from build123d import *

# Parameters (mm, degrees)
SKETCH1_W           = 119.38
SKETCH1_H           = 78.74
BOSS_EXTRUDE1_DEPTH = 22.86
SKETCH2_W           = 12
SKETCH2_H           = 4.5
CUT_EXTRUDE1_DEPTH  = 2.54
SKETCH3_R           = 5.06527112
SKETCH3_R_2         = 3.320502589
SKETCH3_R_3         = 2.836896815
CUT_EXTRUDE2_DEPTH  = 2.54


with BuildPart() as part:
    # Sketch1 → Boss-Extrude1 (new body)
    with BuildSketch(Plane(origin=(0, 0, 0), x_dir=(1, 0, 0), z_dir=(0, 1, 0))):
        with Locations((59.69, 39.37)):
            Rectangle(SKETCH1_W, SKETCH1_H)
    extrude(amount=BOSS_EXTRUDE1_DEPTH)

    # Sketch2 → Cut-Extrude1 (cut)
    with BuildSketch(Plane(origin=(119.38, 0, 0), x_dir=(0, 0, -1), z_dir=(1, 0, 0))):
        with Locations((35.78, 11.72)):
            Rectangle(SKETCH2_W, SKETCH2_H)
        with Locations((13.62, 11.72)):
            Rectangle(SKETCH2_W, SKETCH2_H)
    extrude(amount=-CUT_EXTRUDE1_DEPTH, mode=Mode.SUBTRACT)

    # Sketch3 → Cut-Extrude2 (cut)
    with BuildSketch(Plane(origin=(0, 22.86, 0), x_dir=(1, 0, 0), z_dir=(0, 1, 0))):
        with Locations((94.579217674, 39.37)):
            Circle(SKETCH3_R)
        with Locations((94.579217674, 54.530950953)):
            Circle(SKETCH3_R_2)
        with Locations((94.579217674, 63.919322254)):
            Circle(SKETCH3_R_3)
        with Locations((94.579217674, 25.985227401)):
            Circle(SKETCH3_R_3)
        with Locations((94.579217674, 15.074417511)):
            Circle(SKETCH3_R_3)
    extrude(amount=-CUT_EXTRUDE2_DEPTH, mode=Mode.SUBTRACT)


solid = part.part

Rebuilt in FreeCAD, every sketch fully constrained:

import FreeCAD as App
import Part
import Sketcher
from FreeCAD import Vector
Q = App.Units.Quantity

doc = App.newDocument("Part")
params = doc.addObject("Spreadsheet::Sheet", "Params")
for row, (alias, value) in enumerate([
    ("sketch1_width", "4.7 in"),
    ("sketch1_height", "3.1 in"),
    ("pad1_length", "0.9 in"),
    ("pocket1_length", "0.1 in"),
    ("pocket2_length", "0.1 in"),
], start=1):
    params.set(f"A{row}", alias)
    params.set(f"B{row}", "=" + value)
    params.setAlias(f"B{row}", alias)

body = doc.addObject("PartDesign::Body", "Body")

sketch1 = doc.addObject("Sketcher::SketchObject", "Sketch")
body.addObject(sketch1)
sketch1.AttachmentSupport = (doc.XZ_Plane, [""])
sketch1.MapMode = "FlatFace"
sketch1.addGeometry(Part.LineSegment(Vector(0, -79, 0), Vector(0, 0, 0)), False)
sketch1.addGeometry(Part.LineSegment(Vector(0, 0, 0), Vector(119, 0, 0)), False)
sketch1.addGeometry(Part.LineSegment(Vector(119, 0, 0), Vector(119, -79, 0)), False)
sketch1.addGeometry(Part.LineSegment(Vector(119, -79, 0), Vector(0, -79, 0)), False)
sketch1.addConstraint(Sketcher.Constraint("Coincident", 0, 2, 1, 1))
sketch1.addConstraint(Sketcher.Constraint("Coincident", 1, 2, 2, 1))
sketch1.addConstraint(Sketcher.Constraint("Coincident", 2, 2, 3, 1))
sketch1.addConstraint(Sketcher.Constraint("Coincident", 3, 2, 0, 1))
sketch1.addConstraint(Sketcher.Constraint("Vertical", 0))
sketch1.addConstraint(Sketcher.Constraint("Horizontal", 1))
sketch1.addConstraint(Sketcher.Constraint("Vertical", 2))
sketch1.addConstraint(Sketcher.Constraint("Horizontal", 3))
sketch1.addConstraint(Sketcher.Constraint("Coincident", 0, 2, -1, 1))
sketch1.addConstraint(Sketcher.Constraint("DistanceX", 1, 1, 1, 2, Q("4.7 in")))
sketch1.addConstraint(Sketcher.Constraint("DistanceY", 0, 1, 0, 2, Q("3.1 in")))
sketch1.setExpression("Constraints[9]", "Params.sketch1_width")
sketch1.setExpression("Constraints[10]", "Params.sketch1_height")
pad1 = doc.addObject("PartDesign::Pad", "Pad")
body.addObject(pad1)
pad1.Profile = sketch1
pad1.setExpression("Length", "Params.pad1_length")
pad1.Reversed = True

sketch2 = doc.addObject("Sketcher::SketchObject", "Sketch001")
body.addObject(sketch2)
sketch2.AttachmentSupport = (doc.YZ_Plane, [""])
sketch2.MapMode = "FlatFace"
sketch2.AttachmentOffset = App.Placement(Vector(0, 0, 4.7 * 25.4), App.Rotation())
sketch2.addGeometry(Part.LineSegment(Vector(14, -29.8, 0), Vector(9.5, -29.8, 0)), False)
sketch2.addGeometry(Part.LineSegment(Vector(9.5, -29.8, 0), Vector(9.5, -41.8, 0)), False)
sketch2.addGeometry(Part.LineSegment(Vector(9.5, -41.8, 0), Vector(14, -41.8, 0)), False)
sketch2.addGeometry(Part.LineSegment(Vector(14, -41.8, 0), Vector(14, -29.8, 0)), False)
sketch2.addGeometry(Part.LineSegment(Vector(14, -7.6, 0), Vector(9.5, -7.6, 0)), False)
sketch2.addGeometry(Part.LineSegment(Vector(9.5, -7.6, 0), Vector(9.5, -19.6, 0)), False)
sketch2.addGeometry(Part.LineSegment(Vector(9.5, -19.6, 0), Vector(14, -19.6, 0)), False)
sketch2.addGeometry(Part.LineSegment(Vector(14, -19.6, 0), Vector(14, -7.6, 0)), False)
sketch2.addConstraint(Sketcher.Constraint("Coincident", 0, 2, 1, 1))
sketch2.addConstraint(Sketcher.Constraint("Coincident", 1, 2, 2, 1))
sketch2.addConstraint(Sketcher.Constraint("Coincident", 2, 2, 3, 1))
sketch2.addConstraint(Sketcher.Constraint("Coincident", 3, 2, 0, 1))
sketch2.addConstraint(Sketcher.Constraint("Coincident", 4, 2, 5, 1))
sketch2.addConstraint(Sketcher.Constraint("Coincident", 5, 2, 6, 1))
sketch2.addConstraint(Sketcher.Constraint("Coincident", 6, 2, 7, 1))
sketch2.addConstraint(Sketcher.Constraint("Coincident", 7, 2, 4, 1))
sketch2.addConstraint(Sketcher.Constraint("Horizontal", 0))
sketch2.addConstraint(Sketcher.Constraint("Vertical", 1))
sketch2.addConstraint(Sketcher.Constraint("Horizontal", 2))
sketch2.addConstraint(Sketcher.Constraint("Vertical", 3))
sketch2.addConstraint(Sketcher.Constraint("Horizontal", 4))
sketch2.addConstraint(Sketcher.Constraint("Vertical", 5))
sketch2.addConstraint(Sketcher.Constraint("Horizontal", 6))
sketch2.addConstraint(Sketcher.Constraint("Vertical", 7))
sketch2.addConstraint(Sketcher.Constraint("Vertical", 1, 2, 4, 2))
sketch2.addConstraint(Sketcher.Constraint("Vertical", 3, 2, 6, 2))
sketch2.addConstraint(Sketcher.Constraint("Equal", 3, 5))
sketch2.addConstraint(Sketcher.Constraint("DistanceY", 4, 2, -1, 1, Q("0.3 in")))
sketch2.addConstraint(Sketcher.Constraint("DistanceY", 0, 2, 5, 2, Q("0.4 in")))
sketch2.addConstraint(Sketcher.Constraint("DistanceX", -1, 1, 2, 2, Q("0.55 in")))
sketch2.addConstraint(Sketcher.Constraint("DistanceX", 0, 2, 0, 1, 4.5))
sketch2.addConstraint(Sketcher.Constraint("DistanceY", 1, 2, 1, 1, 12.0))
pocket1 = doc.addObject("PartDesign::Pocket", "Pocket")
body.addObject(pocket1)
pocket1.Profile = sketch2
pocket1.setExpression("Length", "Params.pocket1_length")

sketch3 = doc.addObject("Sketcher::SketchObject", "Sketch002")
body.addObject(sketch3)
sketch3.AttachmentSupport = (doc.XZ_Plane, [""])
sketch3.MapMode = "FlatFace"
sketch3.AttachmentOffset = App.Placement(Vector(0, 0, -0.9 * 25.4), App.Rotation())
sketch3.addGeometry(Part.Circle(Vector(94.6, -39.4, 0), Vector(0, 0, 1), 5.1), False)
sketch3.addGeometry(Part.Circle(Vector(94.6, -54.5, 0), Vector(0, 0, 1), 3.3), False)
sketch3.addGeometry(Part.Circle(Vector(94.6, -63.9, 0), Vector(0, 0, 1), 2.8), False)
sketch3.addGeometry(Part.Circle(Vector(94.6, -26, 0), Vector(0, 0, 1), 2.8), False)
sketch3.addGeometry(Part.Circle(Vector(94.6, -15.1, 0), Vector(0, 0, 1), 2.8), False)
sketch3.addConstraint(Sketcher.Constraint("Equal", 2, 3))
sketch3.addConstraint(Sketcher.Constraint("Equal", 3, 4))
sketch3.addConstraint(Sketcher.Constraint("Vertical", 0, 3, 1, 3))
sketch3.addConstraint(Sketcher.Constraint("Vertical", 1, 3, 2, 3))
sketch3.addConstraint(Sketcher.Constraint("Vertical", 2, 3, 3, 3))
sketch3.addConstraint(Sketcher.Constraint("Vertical", 3, 3, 4, 3))
sketch3.addConstraint(Sketcher.Constraint("DistanceY", 0, 3, -1, 1, Q("1.55 in")))
sketch3.addConstraint(Sketcher.Constraint("Diameter", 0, 10.130542))
sketch3.addConstraint(Sketcher.Constraint("Diameter", 1, 6.641005))
sketch3.addConstraint(Sketcher.Constraint("Diameter", 2, 5.673794))
sketch3.addConstraint(Sketcher.Constraint("DistanceY", 1, 3, -1, 1, 54.530951))
sketch3.addConstraint(Sketcher.Constraint("DistanceY", 2, 3, 1, 3, 9.388371))
sketch3.addConstraint(Sketcher.Constraint("DistanceY", 3, 3, 4, 3, 10.91081))
sketch3.addConstraint(Sketcher.Constraint("DistanceX", -1, 1, 0, 3, 94.579218))
sketch3.addConstraint(Sketcher.Constraint("DistanceY", 3, 3, -1, 1, 25.985227))
pocket2 = doc.addObject("PartDesign::Pocket", "Pocket001")
body.addObject(pocket2)
pocket2.Profile = sketch3
pocket2.setExpression("Length", "Params.pocket2_length")
pocket2.Reversed = True

doc.recompute()
